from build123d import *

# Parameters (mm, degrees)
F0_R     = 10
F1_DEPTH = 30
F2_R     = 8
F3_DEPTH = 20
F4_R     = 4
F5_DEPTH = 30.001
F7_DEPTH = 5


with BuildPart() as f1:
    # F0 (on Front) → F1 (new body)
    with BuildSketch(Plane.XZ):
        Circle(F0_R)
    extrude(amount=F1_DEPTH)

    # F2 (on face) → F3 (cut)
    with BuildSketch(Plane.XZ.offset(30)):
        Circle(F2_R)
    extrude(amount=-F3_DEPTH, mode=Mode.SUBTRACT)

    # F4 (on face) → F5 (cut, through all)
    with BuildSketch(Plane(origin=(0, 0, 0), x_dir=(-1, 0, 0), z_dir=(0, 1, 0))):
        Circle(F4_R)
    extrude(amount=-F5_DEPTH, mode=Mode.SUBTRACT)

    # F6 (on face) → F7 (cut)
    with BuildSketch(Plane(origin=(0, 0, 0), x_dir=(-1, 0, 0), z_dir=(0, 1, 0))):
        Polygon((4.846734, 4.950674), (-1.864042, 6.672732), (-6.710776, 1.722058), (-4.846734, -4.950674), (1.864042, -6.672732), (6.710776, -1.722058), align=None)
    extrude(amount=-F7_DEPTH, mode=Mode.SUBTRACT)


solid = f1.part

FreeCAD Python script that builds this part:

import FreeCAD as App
import Part
import Sketcher

V = App.Vector
Q = App.Units.Quantity


def add_polygon(sketch, points):
    """Adds a closed chain of lines whose ends are joined by coincident constraints."""
    first, n = sketch.GeometryCount, len(points)
    for a, b in zip(points, points[1:] + points[:1]):
        sketch.addGeometry(Part.LineSegment(App.Vector(*a, 0), App.Vector(*b, 0)), False)
    for i in range(n):
        sketch.addConstraint(Sketcher.Constraint("Coincident", first + i, 2, first + (i + 1) % n, 1))

doc = App.newDocument("Part")
params = doc.addObject("Spreadsheet::Sheet", "Params")
for row, (alias, value) in enumerate([
    ("sketch1_diameter", "20 mm"),
    ("pad1_length", "30 mm"),
    ("sketch2_diameter", "16 mm"),
    ("pocket1_length", "20 mm"),
    ("sketch3_diameter", "8 mm"),
    ("pocket3_length", "5 mm"),
], start=1):
    params.set(f"A{row}", alias)
    params.set(f"B{row}", "=" + value)
    params.setAlias(f"B{row}", alias)

body = doc.addObject("PartDesign::Body", "Body")

# Sketch on XZ plane
sketch1 = doc.addObject("Sketcher::SketchObject", "Sketch")
body.addObject(sketch1)
sketch1.AttachmentSupport = (doc.XZ_Plane, [""])
sketch1.MapMode = "FlatFace"
sketch1.addGeometry(Part.Circle(V(0, 0, 0), V(0, 0, 1), 10), False)
sketch1.addConstraint(Sketcher.Constraint("Coincident", 0, 3, -1, 1))
sketch1.addConstraint(Sketcher.Constraint("Diameter", 0, Q("20 mm")))
sketch1.setExpression("Constraints[1]", "Params.sketch1_diameter")
pad1 = doc.addObject("PartDesign::Pad", "Pad")
body.addObject(pad1)
pad1.Profile = sketch1
pad1.setExpression("Length", "Params.pad1_length")

# Sketch on XZ plane
sketch2 = doc.addObject("Sketcher::SketchObject", "Sketch001")
body.addObject(sketch2)
sketch2.AttachmentSupport = (doc.XZ_Plane, [""])
sketch2.MapMode = "FlatFace"
sketch2.AttachmentOffset = App.Placement(V(0, 0, 30), App.Rotation())
sketch2.addGeometry(Part.Circle(V(0, 0, 0), V(0, 0, 1), 8), False)
sketch2.addConstraint(Sketcher.Constraint("Coincident", 0, 3, -1, 1))
sketch2.addConstraint(Sketcher.Constraint("Diameter", 0, Q("16 mm")))
sketch2.setExpression("Constraints[1]", "Params.sketch2_diameter")
pocket1 = doc.addObject("PartDesign::Pocket", "Pocket")
body.addObject(pocket1)
pocket1.Profile = sketch2
pocket1.setExpression("Length", "Params.pocket1_length")

# Sketch on XZ plane
sketch3 = doc.addObject("Sketcher::SketchObject", "Sketch002")
body.addObject(sketch3)
sketch3.AttachmentSupport = (doc.XZ_Plane, [""])
sketch3.MapMode = "FlatFace"
sketch3.addGeometry(Part.Circle(V(0, 0, 0), V(0, 0, 1), 4), False)
sketch3.addConstraint(Sketcher.Constraint("Coincident", 0, 3, -1, 1))
sketch3.addConstraint(Sketcher.Constraint("Diameter", 0, Q("8 mm")))
sketch3.setExpression("Constraints[1]", "Params.sketch3_diameter")
pocket2 = doc.addObject("PartDesign::Pocket", "Pocket001")
body.addObject(pocket2)
pocket2.Profile = sketch3
pocket2.Type = "ThroughAll"
pocket2.Reversed = True

# Sketch on XZ plane
sketch4 = doc.addObject("Sketcher::SketchObject", "Sketch003")
body.addObject(sketch4)
sketch4.AttachmentSupport = (doc.XZ_Plane, [""])
sketch4.MapMode = "FlatFace"
add_polygon(sketch4, [(-5, 5), (2, 7), (7, 2), (5, -5), (-2, -7), (-7, -2)])  # lines 0-5
sketch4.addConstraint(Sketcher.Constraint("Symmetric", 0, 2, 3, 2, -1, 1))
sketch4.addConstraint(Sketcher.Constraint("Symmetric", 1, 2, 4, 2, -1, 1))
sketch4.addConstraint(Sketcher.Constraint("Symmetric", 2, 2, 5, 2, -1, 1))
sketch4.addConstraint(Sketcher.Constraint("Equal", 0, 1))
sketch4.addConstraint(Sketcher.Constraint("Equal", 1, 2))
sketch4.addConstraint(Sketcher.Constraint("DistanceY", -1, 1, 1, 2, Q("1.722058 mm")))
sketch4.addConstraint(Sketcher.Constraint("DistanceX", 0, 2, 2, 2, Q("2.982692 mm")))
sketch4.addConstraint(Sketcher.Constraint("DistanceY", 3, 2, 1, 2, Q("8.39479 mm")))
sketch4.addConstraint(Sketcher.Constraint("DistanceX", 4, 2, 2, 2, Q("11.55751 mm")))
pocket3 = doc.addObject("PartDesign::Pocket", "Pocket002")
body.addObject(pocket3)
pocket3.Profile = sketch4
pocket3.setExpression("Length", "Params.pocket3_length")
pocket3.Reversed = True

doc.recompute()
